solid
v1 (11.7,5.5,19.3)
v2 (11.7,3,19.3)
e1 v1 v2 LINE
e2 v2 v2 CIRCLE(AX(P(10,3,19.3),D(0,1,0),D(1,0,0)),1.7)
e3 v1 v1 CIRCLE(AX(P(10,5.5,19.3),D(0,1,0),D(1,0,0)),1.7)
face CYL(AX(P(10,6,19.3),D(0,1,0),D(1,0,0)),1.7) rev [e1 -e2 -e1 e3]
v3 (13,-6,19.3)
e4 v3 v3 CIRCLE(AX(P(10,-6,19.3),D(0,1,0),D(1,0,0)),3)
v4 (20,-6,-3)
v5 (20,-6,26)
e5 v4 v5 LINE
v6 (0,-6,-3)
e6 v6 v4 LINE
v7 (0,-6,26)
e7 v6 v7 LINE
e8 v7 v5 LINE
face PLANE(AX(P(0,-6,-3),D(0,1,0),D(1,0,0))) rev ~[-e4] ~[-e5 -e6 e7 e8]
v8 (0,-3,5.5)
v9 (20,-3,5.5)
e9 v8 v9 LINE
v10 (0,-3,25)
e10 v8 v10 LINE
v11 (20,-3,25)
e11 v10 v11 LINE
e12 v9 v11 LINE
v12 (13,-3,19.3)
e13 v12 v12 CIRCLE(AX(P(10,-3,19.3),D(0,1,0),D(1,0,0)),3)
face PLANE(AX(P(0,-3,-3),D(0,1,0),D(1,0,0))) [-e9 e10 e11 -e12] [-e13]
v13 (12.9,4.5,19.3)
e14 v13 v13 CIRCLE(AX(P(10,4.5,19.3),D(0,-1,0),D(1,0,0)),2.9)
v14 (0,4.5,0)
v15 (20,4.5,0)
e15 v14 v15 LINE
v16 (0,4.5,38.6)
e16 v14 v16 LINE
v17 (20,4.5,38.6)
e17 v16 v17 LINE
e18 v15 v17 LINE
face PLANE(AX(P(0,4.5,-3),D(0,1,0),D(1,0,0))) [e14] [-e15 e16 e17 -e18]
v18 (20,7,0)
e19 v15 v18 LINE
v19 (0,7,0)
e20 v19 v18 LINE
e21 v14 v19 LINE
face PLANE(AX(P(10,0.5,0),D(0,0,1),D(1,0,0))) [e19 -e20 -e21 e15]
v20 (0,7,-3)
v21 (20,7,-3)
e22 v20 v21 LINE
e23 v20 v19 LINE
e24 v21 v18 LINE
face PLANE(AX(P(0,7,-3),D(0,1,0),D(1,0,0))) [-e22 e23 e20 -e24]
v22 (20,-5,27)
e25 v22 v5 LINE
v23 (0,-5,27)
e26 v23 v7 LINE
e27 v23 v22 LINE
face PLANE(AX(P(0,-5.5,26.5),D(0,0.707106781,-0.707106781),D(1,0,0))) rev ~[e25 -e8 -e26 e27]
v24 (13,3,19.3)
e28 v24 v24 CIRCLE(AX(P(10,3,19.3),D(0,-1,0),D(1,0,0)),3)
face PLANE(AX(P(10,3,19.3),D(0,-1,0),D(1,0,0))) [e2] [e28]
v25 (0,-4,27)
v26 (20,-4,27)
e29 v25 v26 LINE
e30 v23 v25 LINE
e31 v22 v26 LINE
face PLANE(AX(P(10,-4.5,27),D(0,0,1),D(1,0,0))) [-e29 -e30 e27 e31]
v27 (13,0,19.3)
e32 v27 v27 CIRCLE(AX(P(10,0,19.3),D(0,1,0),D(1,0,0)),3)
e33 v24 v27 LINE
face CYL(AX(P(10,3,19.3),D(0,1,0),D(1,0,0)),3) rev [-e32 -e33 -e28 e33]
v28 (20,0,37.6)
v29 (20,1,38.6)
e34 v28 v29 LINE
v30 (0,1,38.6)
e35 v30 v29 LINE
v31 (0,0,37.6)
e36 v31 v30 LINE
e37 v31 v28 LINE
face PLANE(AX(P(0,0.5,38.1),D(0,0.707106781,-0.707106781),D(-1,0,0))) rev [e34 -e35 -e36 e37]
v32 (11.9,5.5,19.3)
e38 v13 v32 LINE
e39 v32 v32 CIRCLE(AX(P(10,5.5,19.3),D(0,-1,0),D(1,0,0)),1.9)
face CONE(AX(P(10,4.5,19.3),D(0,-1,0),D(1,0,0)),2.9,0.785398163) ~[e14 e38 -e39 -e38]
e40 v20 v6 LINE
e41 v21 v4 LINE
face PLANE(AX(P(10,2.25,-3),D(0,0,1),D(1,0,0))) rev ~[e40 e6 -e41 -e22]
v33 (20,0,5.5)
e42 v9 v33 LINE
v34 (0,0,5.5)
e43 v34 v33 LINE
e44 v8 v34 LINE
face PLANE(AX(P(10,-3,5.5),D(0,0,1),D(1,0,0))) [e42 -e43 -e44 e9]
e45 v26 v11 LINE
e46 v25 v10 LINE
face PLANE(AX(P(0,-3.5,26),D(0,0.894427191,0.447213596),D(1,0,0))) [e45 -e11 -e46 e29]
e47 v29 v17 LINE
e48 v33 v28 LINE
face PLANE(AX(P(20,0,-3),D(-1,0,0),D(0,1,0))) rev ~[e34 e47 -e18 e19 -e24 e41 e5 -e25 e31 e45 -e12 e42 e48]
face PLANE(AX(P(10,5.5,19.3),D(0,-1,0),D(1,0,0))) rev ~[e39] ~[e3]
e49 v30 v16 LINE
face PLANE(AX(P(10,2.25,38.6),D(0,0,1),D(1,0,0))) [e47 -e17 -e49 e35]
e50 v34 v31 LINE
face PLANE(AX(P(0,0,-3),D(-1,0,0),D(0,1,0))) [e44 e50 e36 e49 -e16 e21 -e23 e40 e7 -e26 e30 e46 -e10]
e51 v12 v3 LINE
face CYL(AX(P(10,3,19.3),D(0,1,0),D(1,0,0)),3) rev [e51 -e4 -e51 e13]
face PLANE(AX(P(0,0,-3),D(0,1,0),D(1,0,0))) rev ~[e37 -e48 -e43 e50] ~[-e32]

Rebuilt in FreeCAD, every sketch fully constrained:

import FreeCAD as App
import Part
import Sketcher

V = App.Vector
Q = App.Units.Quantity


def edges_at(feature, points):
    """Names of the edges that pass closest to the given points."""
    edges = feature.Shape.Edges
    near = lambda p: min(range(len(edges)), key=lambda i: edges[i].distToShape(Part.Vertex(*p))[0])
    return sorted({f"Edge{near(p) + 1}" for p in points})


def add_polygon(sketch, points):
    """Adds a closed chain of lines whose ends are joined by coincident constraints."""
    first, n = sketch.GeometryCount, len(points)
    for a, b in zip(points, points[1:] + points[:1]):
        sketch.addGeometry(Part.LineSegment(App.Vector(*a, 0), App.Vector(*b, 0)), False)
    for i in range(n):
        sketch.addConstraint(Sketcher.Constraint("Coincident", first + i, 2, first + (i + 1) % n, 1))

doc = App.newDocument("Part")
body = doc.addObject("PartDesign::Body", "Body")

# Sketch on XZ plane
sketch1 = body.newObject("Sketcher::SketchObject", "Sketch")
sketch1.AttachmentSupport = (doc.getObject("XZ_Plane"), [""])
sketch1.MapMode = "FlatFace"
sketch1.AttachmentOffset = App.Placement(V(0, 0, -3), App.Rotation())
sketch1.addGeometry(Part.Circle(V(10, 19.3, 0), V(0, 0, 1), 3), False)
sketch1.addConstraint([
    Sketcher.Constraint("Diameter", 0, Q("6 mm")),
    Sketcher.Constraint("DistanceX", -1, 1, 0, 3, Q("10 mm")),
    Sketcher.Constraint("DistanceY", -1, 1, 0, 3, Q("19.3 mm")),
])
pad1 = body.newObject("PartDesign::Pad", "Pad")
pad1.Profile = sketch1
pad1.Length = 17
body2 = doc.addObject("PartDesign::Body", "Body001")

# Sketch on XZ plane
sketch2 = body2.newObject("Sketcher::SketchObject", "Sketch001")
sketch2.AttachmentSupport = (doc.getObject("XZ_Plane001"), [""])
sketch2.MapMode = "FlatFace"
sketch2.AttachmentOffset = App.Placement(V(0, 0, -6), App.Rotation())
sketch2.addGeometry(Part.Circle(V(10, 19.3, 0), V(0, 0, 1), 1.7), False)
sketch2.addConstraint([
    Sketcher.Constraint("Diameter", 0, Q("3.4 mm")),
    Sketcher.Constraint("DistanceX", -1, 1, 0, 3, Q("10 mm")),
    Sketcher.Constraint("DistanceY", -1, 1, 0, 3, Q("19.3 mm")),
])
pad2 = body2.newObject("PartDesign::Pad", "Pad001")
pad2.Profile = sketch2
pad2.Length = 17
body3 = doc.addObject("PartDesign::Body", "Body002")

# Sketch on XZ plane
sketch3 = body3.newObject("Sketcher::SketchObject", "Sketch002")
sketch3.AttachmentSupport = (doc.getObject("XZ_Plane002"), [""])
sketch3.MapMode = "FlatFace"
sketch3.AttachmentOffset = App.Placement(V(0, 0, -5.5), App.Rotation())
sketch3.addGeometry(Part.Circle(V(10, 19.3, 0), V(0, 0, 1), 2.9), False)
sketch3.addConstraint([
    Sketcher.Constraint("Diameter", 0, Q("5.8 mm")),
    Sketcher.Constraint("DistanceX", -1, 1, 0, 3, Q("10 mm")),
    Sketcher.Constraint("DistanceY", -1, 1, 0, 3, Q("19.3 mm")),
])
pad3 = body3.newObject("PartDesign::Pad", "Pad002")
pad3.Profile = sketch3
pad3.Length = 2
doc.recompute()

chamfer = body3.newObject("PartDesign::Chamfer", "Chamfer")
chamfer.Base = (pad3, edges_at(pad3, [(7.1, 5.5, 19.3)]))
chamfer.Size = 1
body4 = doc.addObject("PartDesign::Body", "Body003")

# Sketch on XY plane
sketch4 = body4.newObject("Sketcher::SketchObject", "Sketch003")
sketch4.AttachmentSupport = (doc.getObject("XY_Plane003"), [""])
sketch4.MapMode = "FlatFace"
sketch4.AttachmentOffset = App.Placement(V(0, 0, -3), App.Rotation())
add_polygon(sketch4, [(0, 0), (0, -6), (20, -6), (20, 0)])  # lines 0-3
sketch4.addConstraint([
    Sketcher.Constraint("Vertical", 0),
    Sketcher.Constraint("Horizontal", 1),
    Sketcher.Constraint("Vertical", 2),
    Sketcher.Constraint("Horizontal", 3),
    Sketcher.Constraint("Coincident", 3, 2, -1, 1),
    Sketcher.Constraint("DistanceX", 1, 1, 1, 2, Q("20 mm")),
    Sketcher.Constraint("DistanceY", 0, 2, 0, 1, Q("6 mm")),
])
pad4 = body4.newObject("PartDesign::Pad", "Pad003")
pad4.Profile = sketch4
pad4.Length = 8.5
body5 = doc.addObject("PartDesign::Body", "Body004")

# Sketch on XY plane
sketch5 = body5.newObject("Sketcher::SketchObject", "Sketch004")
sketch5.AttachmentSupport = (doc.getObject("XY_Plane004"), [""])
sketch5.MapMode = "FlatFace"
sketch5.AttachmentOffset = App.Placement(V(0, 0, -3), App.Rotation())
add_polygon(sketch5, [(0, 4.5), (0, 0), (20, 0), (20, 4.5)])  # lines 0-3
sketch5.addConstraint([
    Sketcher.Constraint("Vertical", 0),
    Sketcher.Constraint("Horizontal", 1),
    Sketcher.Constraint("Vertical", 2),
    Sketcher.Constraint("Horizontal", 3),
    Sketcher.Constraint("Coincident", 0, 2, -1, 1),
    Sketcher.Constraint("DistanceX", 1, 1, 1, 2, Q("20 mm")),
    Sketcher.Constraint("DistanceY", 0, 2, 0, 1, Q("4.5 mm")),
])
pad5 = body5.newObject("PartDesign::Pad", "Pad004")
pad5.Profile = sketch5
pad5.Length = 41.6
body6 = doc.addObject("PartDesign::Body", "Body005")

# Sketch on XY plane
sketch6 = body6.newObject("Sketcher::SketchObject", "Sketch005")
sketch6.AttachmentSupport = (doc.getObject("XY_Plane005"), [""])
sketch6.MapMode = "FlatFace"
sketch6.AttachmentOffset = App.Placement(V(0, 0, -3), App.Rotation())
add_polygon(sketch6, [(0, 7), (0, -6), (20, -6), (20, 7)])  # lines 0-3
sketch6.addConstraint([
    Sketcher.Constraint("Vertical", 0),
    Sketcher.Constraint("Horizontal", 1),
    Sketcher.Constraint("Vertical", 2),
    Sketcher.Constraint("Horizontal", 3),
    Sketcher.Constraint("PointOnObject", 0, 2, -2),
    Sketcher.Constraint("DistanceX", 1, 1, 1, 2, Q("20 mm")),
    Sketcher.Constraint("DistanceY", 0, 2, 0, 1, Q("13 mm")),
    Sketcher.Constraint("DistanceY", 0, 2, -1, 1, Q("6 mm")),
])
pad6 = body6.newObject("PartDesign::Pad", "Pad005")
pad6.Profile = sketch6
pad6.Length = 3
body7 = doc.addObject("PartDesign::Body", "Body006")

# Sketch on XY plane
sketch7 = body7.newObject("Sketcher::SketchObject", "Sketch006")
sketch7.AttachmentSupport = (doc.getObject("XY_Plane006"), [""])
sketch7.MapMode = "FlatFace"
sketch7.AttachmentOffset = App.Placement(V(0, 0, -3), App.Rotation())
add_polygon(sketch7, [(0, -3), (0, -6), (20, -6), (20, -3)])  # lines 0-3
sketch7.addConstraint([
    Sketcher.Constraint("Vertical", 0),
    Sketcher.Constraint("Horizontal", 1),
    Sketcher.Constraint("Vertical", 2),
    Sketcher.Constraint("Horizontal", 3),
    Sketcher.Constraint("PointOnObject", 0, 2, -2),
    Sketcher.Constraint("DistanceX", 1, 1, 1, 2, Q("20 mm")),
    Sketcher.Constraint("DistanceY", 0, 2, 0, 1, Q("3 mm")),
    Sketcher.Constraint("DistanceY", 0, 2, -1, 1, Q("6 mm")),
])
pad7 = body7.newObject("PartDesign::Pad", "Pad006")
pad7.Profile = sketch7
pad7.Length = 30
doc.recompute()

boolean = body7.newObject("PartDesign::Boolean", "Boolean")
boolean.Type = "Fuse"
boolean.addObjects([body4])
doc.recompute()

boolean2 = body7.newObject("PartDesign::Boolean", "Boolean001")
boolean2.Type = "Fuse"
boolean2.addObjects([body5])
doc.recompute()

boolean3 = body7.newObject("PartDesign::Boolean", "Boolean002")
boolean3.Type = "Fuse"
boolean3.addObjects([body6])
doc.recompute()

chamfer2 = body7.newObject("PartDesign::Chamfer", "Chamfer001")
chamfer2.Base = (boolean3, edges_at(boolean3, [(10, -3, 27)]))
chamfer2.ChamferType = "Two distances"
chamfer2.Size = 1
chamfer2.Size2 = 2
doc.recompute()

chamfer3 = body7.newObject("PartDesign::Chamfer", "Chamfer002")
chamfer3.Base = (chamfer2, edges_at(chamfer2, [(10, 0, 38.6)]))
chamfer3.Size = 1
doc.recompute()

boolean4 = body7.newObject("PartDesign::Boolean", "Boolean003")
boolean4.Type = "Fuse"
boolean4.addObjects([body3])
doc.recompute()

boolean5 = body7.newObject("PartDesign::Boolean", "Boolean004")
boolean5.Type = "Cut"
boolean5.addObjects([body2])
doc.recompute()

chamfer4 = body7.newObject("PartDesign::Chamfer", "Chamfer003")
chamfer4.Base = (boolean5, edges_at(boolean5, [(10, -6, 27)]))
chamfer4.Size = 1
doc.recompute()

boolean6 = body7.newObject("PartDesign::Boolean", "Boolean005")
boolean6.Type = "Cut"
boolean6.addObjects([body])

doc.recompute()
